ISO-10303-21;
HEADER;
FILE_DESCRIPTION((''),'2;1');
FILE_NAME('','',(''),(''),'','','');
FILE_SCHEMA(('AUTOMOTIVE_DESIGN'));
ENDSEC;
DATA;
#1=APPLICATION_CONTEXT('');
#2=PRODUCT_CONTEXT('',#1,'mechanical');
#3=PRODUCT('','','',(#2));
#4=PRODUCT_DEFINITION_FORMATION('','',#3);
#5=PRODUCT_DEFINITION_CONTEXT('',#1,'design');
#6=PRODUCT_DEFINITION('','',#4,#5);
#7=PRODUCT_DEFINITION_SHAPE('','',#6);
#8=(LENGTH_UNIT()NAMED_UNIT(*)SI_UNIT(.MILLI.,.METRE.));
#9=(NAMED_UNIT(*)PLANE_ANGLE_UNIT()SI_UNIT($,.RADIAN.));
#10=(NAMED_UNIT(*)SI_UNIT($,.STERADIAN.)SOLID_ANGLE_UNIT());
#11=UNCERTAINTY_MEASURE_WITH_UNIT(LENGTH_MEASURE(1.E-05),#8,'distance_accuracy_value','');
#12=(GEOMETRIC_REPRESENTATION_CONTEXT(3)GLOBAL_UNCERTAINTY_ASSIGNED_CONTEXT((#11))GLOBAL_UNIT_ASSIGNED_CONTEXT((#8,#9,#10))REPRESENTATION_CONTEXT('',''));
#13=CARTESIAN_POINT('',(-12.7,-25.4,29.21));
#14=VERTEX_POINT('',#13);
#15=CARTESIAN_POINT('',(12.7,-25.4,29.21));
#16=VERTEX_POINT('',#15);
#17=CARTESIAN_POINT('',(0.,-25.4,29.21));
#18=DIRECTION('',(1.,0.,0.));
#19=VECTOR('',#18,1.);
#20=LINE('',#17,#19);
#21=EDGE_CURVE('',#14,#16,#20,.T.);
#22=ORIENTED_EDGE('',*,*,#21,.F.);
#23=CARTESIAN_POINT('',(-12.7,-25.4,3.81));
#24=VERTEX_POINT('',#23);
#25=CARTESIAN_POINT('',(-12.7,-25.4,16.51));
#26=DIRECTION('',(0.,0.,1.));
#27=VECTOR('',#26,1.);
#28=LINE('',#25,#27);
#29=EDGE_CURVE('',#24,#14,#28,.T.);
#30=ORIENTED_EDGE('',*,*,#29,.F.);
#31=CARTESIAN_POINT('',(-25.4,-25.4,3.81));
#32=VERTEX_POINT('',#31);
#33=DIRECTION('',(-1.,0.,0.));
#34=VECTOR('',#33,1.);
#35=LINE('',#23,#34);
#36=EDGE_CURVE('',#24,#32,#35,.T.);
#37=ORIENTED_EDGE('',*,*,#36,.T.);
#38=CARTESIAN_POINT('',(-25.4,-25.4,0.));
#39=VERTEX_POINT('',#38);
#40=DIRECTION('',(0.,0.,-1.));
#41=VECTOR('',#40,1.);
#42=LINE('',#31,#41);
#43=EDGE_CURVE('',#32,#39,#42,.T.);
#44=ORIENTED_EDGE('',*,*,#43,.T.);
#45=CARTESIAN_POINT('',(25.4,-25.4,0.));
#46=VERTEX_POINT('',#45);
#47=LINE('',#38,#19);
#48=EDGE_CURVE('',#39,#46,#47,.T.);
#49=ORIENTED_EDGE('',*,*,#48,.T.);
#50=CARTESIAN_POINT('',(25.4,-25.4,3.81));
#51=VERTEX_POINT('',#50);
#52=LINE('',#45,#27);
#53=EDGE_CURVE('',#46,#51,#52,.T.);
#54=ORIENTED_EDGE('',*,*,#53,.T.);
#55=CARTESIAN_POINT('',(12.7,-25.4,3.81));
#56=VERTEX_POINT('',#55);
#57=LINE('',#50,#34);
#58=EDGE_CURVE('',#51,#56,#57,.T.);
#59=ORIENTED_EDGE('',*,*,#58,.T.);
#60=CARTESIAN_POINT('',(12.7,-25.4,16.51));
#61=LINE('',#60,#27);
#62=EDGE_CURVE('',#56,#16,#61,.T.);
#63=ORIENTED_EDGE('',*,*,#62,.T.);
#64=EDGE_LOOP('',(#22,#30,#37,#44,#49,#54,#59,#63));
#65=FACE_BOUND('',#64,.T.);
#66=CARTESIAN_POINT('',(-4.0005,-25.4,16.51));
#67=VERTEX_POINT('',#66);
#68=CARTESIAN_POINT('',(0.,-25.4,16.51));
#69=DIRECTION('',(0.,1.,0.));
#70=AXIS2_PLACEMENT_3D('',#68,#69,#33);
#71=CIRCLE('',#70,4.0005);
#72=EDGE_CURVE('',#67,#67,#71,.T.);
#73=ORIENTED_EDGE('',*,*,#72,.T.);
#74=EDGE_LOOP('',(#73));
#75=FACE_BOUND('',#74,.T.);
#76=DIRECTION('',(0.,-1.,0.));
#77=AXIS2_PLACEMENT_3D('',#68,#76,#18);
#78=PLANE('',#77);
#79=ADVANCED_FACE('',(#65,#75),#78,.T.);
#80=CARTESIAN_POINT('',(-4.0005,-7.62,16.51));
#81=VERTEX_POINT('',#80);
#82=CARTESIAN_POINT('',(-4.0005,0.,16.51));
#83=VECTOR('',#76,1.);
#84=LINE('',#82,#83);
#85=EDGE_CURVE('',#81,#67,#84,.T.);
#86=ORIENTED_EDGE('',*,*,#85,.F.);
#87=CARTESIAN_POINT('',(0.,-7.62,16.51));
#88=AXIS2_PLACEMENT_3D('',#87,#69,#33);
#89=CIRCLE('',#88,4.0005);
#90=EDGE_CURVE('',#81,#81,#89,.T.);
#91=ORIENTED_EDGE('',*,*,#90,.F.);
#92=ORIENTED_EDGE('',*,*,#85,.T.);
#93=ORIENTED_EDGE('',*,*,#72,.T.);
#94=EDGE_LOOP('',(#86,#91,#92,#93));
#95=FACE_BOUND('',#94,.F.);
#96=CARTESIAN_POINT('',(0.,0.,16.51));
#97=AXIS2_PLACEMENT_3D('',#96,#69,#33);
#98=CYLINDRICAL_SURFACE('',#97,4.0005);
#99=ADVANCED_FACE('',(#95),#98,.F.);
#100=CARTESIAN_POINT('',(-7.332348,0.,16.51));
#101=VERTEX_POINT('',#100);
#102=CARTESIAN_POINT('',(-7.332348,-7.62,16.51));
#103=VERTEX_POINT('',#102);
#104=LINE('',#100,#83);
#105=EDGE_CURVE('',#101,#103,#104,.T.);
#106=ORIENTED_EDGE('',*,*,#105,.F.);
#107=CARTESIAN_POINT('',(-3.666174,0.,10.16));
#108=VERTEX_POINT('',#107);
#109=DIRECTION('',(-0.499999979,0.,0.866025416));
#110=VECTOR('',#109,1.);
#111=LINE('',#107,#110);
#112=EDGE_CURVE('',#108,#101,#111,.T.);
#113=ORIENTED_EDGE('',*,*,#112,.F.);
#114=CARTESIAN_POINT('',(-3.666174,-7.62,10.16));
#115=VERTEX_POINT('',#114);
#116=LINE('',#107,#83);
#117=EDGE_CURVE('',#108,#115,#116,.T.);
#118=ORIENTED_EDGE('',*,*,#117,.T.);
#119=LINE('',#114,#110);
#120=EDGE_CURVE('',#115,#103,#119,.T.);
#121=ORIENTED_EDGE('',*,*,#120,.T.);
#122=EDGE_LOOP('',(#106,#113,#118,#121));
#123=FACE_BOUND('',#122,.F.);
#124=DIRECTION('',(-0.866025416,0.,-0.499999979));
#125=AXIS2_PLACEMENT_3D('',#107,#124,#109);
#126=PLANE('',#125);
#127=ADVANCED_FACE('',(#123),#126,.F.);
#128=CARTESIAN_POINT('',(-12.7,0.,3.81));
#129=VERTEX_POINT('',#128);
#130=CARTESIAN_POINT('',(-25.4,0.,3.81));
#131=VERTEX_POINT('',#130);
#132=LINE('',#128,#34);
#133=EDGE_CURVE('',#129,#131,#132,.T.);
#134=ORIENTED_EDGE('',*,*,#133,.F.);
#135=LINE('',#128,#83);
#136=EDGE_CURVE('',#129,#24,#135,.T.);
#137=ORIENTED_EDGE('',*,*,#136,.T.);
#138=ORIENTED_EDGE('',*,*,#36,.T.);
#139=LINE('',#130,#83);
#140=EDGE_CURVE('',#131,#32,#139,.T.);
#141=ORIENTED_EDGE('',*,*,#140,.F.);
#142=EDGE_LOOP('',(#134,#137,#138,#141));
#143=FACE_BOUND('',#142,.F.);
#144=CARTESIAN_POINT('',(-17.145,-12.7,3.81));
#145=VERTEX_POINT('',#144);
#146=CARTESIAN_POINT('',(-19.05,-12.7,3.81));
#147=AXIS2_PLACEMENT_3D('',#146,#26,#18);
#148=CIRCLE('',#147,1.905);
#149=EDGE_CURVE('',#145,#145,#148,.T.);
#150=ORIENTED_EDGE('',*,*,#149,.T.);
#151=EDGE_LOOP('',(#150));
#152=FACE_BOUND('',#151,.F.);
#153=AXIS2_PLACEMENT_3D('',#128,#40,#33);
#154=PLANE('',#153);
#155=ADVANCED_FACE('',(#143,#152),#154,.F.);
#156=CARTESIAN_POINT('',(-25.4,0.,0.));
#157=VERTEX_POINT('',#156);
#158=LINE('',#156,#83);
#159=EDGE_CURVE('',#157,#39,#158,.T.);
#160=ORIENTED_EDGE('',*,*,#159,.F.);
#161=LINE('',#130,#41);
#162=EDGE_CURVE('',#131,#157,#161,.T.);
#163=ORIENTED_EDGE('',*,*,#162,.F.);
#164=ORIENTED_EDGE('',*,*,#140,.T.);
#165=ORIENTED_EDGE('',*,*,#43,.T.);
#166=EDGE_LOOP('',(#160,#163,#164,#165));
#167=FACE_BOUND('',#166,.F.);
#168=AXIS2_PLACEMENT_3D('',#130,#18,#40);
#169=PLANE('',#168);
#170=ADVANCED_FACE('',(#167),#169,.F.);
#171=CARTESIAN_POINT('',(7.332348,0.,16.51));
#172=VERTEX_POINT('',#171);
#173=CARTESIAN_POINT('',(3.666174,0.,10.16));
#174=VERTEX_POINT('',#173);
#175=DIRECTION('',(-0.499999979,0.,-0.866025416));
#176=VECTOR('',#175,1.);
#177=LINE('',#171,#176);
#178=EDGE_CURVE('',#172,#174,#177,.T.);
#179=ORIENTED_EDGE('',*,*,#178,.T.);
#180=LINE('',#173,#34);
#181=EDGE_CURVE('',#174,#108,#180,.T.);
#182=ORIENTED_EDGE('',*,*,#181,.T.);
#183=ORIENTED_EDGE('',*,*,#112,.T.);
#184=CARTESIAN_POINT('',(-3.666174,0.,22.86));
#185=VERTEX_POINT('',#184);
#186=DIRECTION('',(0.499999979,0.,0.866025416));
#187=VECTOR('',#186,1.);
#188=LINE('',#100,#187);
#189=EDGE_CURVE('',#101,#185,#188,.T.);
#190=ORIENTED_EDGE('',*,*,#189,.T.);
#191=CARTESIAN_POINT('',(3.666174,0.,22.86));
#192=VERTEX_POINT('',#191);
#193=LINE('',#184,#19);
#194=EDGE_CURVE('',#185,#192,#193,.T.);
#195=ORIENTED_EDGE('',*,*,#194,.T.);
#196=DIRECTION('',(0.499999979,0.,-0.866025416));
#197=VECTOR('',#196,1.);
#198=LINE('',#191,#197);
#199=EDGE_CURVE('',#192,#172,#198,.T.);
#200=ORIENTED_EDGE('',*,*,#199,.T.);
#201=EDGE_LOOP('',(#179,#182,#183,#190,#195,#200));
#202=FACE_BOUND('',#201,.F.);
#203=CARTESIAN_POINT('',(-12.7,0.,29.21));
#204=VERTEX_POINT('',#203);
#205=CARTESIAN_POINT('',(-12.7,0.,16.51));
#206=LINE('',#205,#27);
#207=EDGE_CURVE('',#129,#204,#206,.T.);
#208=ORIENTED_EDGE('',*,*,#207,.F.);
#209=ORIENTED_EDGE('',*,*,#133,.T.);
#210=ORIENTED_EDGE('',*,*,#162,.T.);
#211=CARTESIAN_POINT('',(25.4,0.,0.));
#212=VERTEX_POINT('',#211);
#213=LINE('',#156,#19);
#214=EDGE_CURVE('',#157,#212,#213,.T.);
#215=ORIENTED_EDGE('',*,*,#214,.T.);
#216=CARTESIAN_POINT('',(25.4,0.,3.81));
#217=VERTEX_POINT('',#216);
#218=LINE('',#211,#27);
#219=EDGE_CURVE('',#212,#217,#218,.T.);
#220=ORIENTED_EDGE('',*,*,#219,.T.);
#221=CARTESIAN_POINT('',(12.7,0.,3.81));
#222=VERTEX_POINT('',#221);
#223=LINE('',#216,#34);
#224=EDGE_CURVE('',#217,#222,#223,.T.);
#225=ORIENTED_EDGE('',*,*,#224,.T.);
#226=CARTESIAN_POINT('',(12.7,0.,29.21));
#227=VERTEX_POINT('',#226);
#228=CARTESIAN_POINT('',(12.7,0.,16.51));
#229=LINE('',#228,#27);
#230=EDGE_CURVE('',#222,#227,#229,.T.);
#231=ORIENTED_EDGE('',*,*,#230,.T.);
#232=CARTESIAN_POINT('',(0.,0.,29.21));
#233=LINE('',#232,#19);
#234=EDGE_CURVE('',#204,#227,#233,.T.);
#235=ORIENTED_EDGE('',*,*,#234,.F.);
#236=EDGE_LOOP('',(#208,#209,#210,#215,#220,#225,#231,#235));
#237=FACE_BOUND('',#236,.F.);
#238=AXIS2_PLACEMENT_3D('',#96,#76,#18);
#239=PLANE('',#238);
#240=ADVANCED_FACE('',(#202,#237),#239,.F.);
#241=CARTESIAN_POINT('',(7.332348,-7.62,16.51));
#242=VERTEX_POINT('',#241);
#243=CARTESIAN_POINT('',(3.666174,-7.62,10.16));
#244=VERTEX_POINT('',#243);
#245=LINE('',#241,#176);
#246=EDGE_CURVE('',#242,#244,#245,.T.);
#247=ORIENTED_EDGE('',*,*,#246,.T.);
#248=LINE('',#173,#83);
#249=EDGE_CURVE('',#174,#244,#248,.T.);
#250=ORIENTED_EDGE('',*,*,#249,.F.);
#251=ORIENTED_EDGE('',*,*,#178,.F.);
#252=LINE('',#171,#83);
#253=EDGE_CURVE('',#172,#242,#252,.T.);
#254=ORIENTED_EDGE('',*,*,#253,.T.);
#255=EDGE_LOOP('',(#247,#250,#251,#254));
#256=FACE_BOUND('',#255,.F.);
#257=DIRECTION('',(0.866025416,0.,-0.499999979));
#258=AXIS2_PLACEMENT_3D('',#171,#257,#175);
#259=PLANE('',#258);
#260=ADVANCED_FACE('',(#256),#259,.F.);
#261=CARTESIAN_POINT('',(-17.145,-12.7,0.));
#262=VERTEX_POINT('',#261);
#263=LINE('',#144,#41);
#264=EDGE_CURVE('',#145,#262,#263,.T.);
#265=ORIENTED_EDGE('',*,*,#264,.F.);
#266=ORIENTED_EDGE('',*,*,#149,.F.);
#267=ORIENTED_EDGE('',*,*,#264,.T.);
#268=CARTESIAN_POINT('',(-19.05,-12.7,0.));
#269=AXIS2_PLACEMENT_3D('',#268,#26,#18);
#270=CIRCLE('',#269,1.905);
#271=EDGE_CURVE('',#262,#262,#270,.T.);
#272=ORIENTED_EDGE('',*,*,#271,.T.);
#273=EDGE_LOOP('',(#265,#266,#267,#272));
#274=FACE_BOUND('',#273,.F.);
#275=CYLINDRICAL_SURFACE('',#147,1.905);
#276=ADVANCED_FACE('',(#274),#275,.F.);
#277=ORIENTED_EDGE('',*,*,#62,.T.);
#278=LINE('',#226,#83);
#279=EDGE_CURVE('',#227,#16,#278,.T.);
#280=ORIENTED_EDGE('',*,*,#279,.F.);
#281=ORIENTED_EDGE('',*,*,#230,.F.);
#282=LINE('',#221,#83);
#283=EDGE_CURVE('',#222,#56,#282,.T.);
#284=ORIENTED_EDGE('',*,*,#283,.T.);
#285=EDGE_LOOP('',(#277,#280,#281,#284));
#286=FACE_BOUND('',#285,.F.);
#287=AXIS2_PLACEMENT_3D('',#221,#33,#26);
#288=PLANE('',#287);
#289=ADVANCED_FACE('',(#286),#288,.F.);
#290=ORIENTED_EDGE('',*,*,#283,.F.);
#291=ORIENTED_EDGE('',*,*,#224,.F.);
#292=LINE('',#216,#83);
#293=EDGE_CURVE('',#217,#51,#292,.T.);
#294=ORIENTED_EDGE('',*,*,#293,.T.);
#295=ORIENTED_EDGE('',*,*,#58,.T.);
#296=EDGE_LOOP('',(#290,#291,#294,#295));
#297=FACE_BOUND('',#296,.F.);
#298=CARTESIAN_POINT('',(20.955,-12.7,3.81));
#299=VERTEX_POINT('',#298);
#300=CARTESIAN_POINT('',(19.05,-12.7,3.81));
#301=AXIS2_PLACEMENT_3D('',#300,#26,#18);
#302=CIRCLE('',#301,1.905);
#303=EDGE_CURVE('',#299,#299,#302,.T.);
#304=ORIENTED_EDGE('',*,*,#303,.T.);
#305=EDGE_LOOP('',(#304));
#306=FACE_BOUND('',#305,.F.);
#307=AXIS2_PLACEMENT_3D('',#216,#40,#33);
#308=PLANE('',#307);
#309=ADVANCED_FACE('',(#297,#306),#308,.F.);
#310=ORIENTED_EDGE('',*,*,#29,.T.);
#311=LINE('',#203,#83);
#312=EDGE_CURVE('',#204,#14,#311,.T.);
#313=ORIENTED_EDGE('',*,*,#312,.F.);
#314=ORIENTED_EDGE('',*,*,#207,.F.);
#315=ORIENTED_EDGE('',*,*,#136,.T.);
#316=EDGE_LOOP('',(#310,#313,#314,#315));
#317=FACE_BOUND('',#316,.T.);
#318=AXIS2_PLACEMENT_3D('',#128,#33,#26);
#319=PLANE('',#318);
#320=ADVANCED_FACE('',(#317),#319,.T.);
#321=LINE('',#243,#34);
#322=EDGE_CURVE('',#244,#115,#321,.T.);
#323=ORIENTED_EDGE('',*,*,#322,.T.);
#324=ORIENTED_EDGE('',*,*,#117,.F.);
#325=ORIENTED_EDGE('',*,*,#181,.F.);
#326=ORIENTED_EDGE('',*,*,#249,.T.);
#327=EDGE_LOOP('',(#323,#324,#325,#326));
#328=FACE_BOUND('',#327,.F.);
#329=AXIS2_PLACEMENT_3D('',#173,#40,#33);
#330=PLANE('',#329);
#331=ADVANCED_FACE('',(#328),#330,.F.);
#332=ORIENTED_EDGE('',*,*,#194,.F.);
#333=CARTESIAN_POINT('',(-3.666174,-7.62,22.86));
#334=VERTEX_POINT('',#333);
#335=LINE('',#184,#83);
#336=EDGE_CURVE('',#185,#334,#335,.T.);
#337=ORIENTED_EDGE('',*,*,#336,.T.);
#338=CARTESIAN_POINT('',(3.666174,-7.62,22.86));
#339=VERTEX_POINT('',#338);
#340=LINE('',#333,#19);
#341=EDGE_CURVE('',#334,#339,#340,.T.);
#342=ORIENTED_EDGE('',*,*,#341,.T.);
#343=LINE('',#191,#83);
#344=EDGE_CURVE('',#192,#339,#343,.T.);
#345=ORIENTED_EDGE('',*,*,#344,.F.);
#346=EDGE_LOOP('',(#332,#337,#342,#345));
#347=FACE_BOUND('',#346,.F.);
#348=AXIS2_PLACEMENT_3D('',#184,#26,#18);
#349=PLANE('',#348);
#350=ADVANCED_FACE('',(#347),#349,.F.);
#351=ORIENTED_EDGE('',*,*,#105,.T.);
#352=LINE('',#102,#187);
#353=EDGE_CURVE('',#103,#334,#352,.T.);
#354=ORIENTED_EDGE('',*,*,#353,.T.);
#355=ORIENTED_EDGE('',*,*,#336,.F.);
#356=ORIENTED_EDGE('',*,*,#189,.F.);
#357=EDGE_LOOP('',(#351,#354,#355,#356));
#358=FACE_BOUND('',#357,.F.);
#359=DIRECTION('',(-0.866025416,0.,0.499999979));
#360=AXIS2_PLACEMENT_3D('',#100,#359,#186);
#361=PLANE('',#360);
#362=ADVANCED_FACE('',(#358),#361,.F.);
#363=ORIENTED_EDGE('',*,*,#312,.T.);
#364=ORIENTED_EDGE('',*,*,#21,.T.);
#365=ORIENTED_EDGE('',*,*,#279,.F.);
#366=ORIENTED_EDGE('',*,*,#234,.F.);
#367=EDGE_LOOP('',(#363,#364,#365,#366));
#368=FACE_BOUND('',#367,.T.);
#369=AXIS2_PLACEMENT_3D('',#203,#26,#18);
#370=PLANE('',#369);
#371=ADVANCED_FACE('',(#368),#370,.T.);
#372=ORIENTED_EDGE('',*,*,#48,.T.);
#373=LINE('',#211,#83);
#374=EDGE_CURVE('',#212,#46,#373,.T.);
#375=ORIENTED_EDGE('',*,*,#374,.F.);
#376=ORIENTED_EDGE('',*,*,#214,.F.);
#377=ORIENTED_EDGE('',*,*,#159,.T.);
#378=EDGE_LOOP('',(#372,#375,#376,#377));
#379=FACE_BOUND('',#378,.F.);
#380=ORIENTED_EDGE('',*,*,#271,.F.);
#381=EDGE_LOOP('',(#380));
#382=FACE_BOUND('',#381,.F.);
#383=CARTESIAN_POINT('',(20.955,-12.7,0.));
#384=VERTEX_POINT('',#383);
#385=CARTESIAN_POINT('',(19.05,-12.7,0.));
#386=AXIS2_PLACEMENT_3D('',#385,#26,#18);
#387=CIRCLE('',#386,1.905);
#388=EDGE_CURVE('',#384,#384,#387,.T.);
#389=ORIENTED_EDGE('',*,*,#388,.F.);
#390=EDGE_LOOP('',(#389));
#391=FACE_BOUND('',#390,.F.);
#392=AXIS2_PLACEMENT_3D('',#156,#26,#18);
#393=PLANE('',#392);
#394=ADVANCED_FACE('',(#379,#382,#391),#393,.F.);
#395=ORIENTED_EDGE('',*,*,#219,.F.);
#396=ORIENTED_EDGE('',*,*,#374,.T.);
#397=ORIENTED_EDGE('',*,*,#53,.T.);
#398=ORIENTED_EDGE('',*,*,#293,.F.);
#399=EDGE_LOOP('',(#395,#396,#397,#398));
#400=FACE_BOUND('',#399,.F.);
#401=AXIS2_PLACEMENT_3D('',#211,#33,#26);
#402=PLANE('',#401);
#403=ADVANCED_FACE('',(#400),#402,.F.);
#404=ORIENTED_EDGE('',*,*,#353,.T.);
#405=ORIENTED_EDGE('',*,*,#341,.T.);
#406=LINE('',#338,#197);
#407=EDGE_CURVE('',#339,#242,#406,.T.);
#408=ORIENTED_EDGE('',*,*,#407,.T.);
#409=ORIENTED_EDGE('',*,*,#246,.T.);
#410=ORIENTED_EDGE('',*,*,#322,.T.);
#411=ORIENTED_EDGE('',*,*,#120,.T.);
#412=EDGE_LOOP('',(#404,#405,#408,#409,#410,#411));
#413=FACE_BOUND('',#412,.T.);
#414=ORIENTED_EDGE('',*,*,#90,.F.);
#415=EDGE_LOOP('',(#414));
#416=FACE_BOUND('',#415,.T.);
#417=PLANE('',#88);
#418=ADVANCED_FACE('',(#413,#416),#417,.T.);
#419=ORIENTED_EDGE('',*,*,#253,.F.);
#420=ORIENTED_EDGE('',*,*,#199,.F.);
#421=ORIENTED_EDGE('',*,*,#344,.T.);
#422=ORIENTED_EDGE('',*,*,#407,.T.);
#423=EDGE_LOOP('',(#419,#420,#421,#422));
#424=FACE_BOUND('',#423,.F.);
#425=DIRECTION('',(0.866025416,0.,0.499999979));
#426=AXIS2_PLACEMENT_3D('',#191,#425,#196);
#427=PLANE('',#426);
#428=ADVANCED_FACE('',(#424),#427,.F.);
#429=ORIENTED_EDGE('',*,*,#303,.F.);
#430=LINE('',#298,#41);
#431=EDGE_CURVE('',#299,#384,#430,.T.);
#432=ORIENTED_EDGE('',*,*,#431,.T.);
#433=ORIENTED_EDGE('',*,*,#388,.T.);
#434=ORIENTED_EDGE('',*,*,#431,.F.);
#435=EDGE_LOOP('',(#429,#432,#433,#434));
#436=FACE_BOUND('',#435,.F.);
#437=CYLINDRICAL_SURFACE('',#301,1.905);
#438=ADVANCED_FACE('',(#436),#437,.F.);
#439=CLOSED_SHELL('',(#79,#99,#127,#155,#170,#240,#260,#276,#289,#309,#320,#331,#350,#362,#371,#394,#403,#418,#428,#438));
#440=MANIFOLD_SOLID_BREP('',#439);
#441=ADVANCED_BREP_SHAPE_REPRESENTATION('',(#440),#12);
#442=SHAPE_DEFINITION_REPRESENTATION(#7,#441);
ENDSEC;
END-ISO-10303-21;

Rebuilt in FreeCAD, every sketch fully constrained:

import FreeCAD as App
import Part
import Sketcher
Q = App.Units.Quantity

doc = App.newDocument("Part")
body = doc.addObject("PartDesign::Body", "Body")

# Sketch on XZ plane
sketch1 = body.newObject("Sketcher::SketchObject", "Sketch")
sketch1.AttachmentSupport = (doc.getObject("XZ_Plane"), [""])
sketch1.MapMode = "FlatFace"
sketch1.addGeometry([
    Part.LineSegment(App.Vector(-12.7, 29.2, 0), App.Vector(-12.7, 3.8, 0)),  # 0
    Part.LineSegment(App.Vector(-12.7, 3.8, 0), App.Vector(-25.4, 3.8, 0)),  # 1
    Part.LineSegment(App.Vector(-25.4, 3.8, 0), App.Vector(-25.4, 0, 0)),  # 2
    Part.LineSegment(App.Vector(-25.4, 0, 0), App.Vector(25.4, 0, 0)),  # 3
    Part.LineSegment(App.Vector(25.4, 0, 0), App.Vector(25.4, 3.8, 0)),  # 4
    Part.LineSegment(App.Vector(25.4, 3.8, 0), App.Vector(12.7, 3.8, 0)),  # 5
    Part.LineSegment(App.Vector(12.7, 3.8, 0), App.Vector(12.7, 29.2, 0)),  # 6
    Part.LineSegment(App.Vector(12.7, 29.2, 0), App.Vector(-12.7, 29.2, 0)),  # 7
], False)
sketch1.addConstraint([
    Sketcher.Constraint("Coincident", 0, 2, 1, 1),
    Sketcher.Constraint("Coincident", 1, 2, 2, 1),
    Sketcher.Constraint("Coincident", 2, 2, 3, 1),
    Sketcher.Constraint("Coincident", 3, 2, 4, 1),
    Sketcher.Constraint("Coincident", 4, 2, 5, 1),
    Sketcher.Constraint("Coincident", 5, 2, 6, 1),
    Sketcher.Constraint("Coincident", 6, 2, 7, 1),
    Sketcher.Constraint("Coincident", 7, 2, 0, 1),
    Sketcher.Constraint("Vertical", 0),
    Sketcher.Constraint("Horizontal", 1),
    Sketcher.Constraint("Vertical", 2),
    Sketcher.Constraint("Horizontal", 3),
    Sketcher.Constraint("Vertical", 4),
    Sketcher.Constraint("Horizontal", 5),
    Sketcher.Constraint("Vertical", 6),
    Sketcher.Constraint("Horizontal", 7),
    Sketcher.Constraint("Symmetric", 2, 2, 3, 2, -1, 1),
    Sketcher.Constraint("Symmetric", 0, 2, 5, 2, -2),
    Sketcher.Constraint("Equal", 7, 0),
    Sketcher.Constraint("DistanceX", 3, 1, 3, 2, Q("2 in")),
    Sketcher.Constraint("DistanceX", 7, 2, 7, 1, Q("1 in")),
    Sketcher.Constraint("DistanceY", 2, 2, 2, 1, Q("0.15 in")),
])
pad1 = body.newObject("PartDesign::Pad", "Pad")
pad1.Profile = sketch1
pad1.Length = Q("1 in")

# Sketch on XZ plane
sketch2 = body.newObject("Sketcher::SketchObject", "Sketch001")
sketch2.AttachmentSupport = (doc.getObject("XZ_Plane"), [""])
sketch2.MapMode = "FlatFace"
sketch2.addGeometry(Part.Circle(App.Vector(0, 16.5, 0), App.Vector(0, 0, 1), 4), False)
sketch2.addConstraint([
    Sketcher.Constraint("PointOnObject", 0, 3, -2),
    Sketcher.Constraint("Diameter", 0, Q("0.315 in")),
    Sketcher.Constraint("DistanceY", -1, 1, 0, 3, Q("0.65 in")),
])
pocket1 = body.newObject("PartDesign::Pocket", "Pocket")
pocket1.Profile = sketch2
pocket1.Type = "ThroughAll"
pocket1.Reversed = True

# Sketch on XZ plane
sketch3 = body.newObject("Sketcher::SketchObject", "Sketch002")
sketch3.AttachmentSupport = (doc.getObject("XZ_Plane"), [""])
sketch3.MapMode = "FlatFace"
sketch3.addGeometry([
    Part.LineSegment(App.Vector(-7.3, 16.5, 0), App.Vector(-3.7, 22.9, 0)),  # 0
    Part.LineSegment(App.Vector(-3.7, 22.9, 0), App.Vector(3.7, 22.9, 0)),  # 1
    Part.LineSegment(App.Vector(3.7, 22.9, 0), App.Vector(7.3, 16.5, 0)),  # 2
    Part.LineSegment(App.Vector(7.3, 16.5, 0), App.Vector(3.7, 10.2, 0)),  # 3
    Part.LineSegment(App.Vector(3.7, 10.2, 0), App.Vector(-3.7, 10.2, 0)),  # 4
    Part.LineSegment(App.Vector(-3.7, 10.2, 0), App.Vector(-7.3, 16.5, 0)),  # 5
    Part.Circle(App.Vector(0, 16.5, 0), App.Vector(0, 0, 1), 4),  # 6
], False)
sketch3.addConstraint([
    Sketcher.Constraint("Coincident", 0, 2, 1, 1),
    Sketcher.Constraint("Coincident", 1, 2, 2, 1),
    Sketcher.Constraint("Coincident", 2, 2, 3, 1),
    Sketcher.Constraint("Coincident", 3, 2, 4, 1),
    Sketcher.Constraint("Coincident", 4, 2, 5, 1),
    Sketcher.Constraint("Coincident", 5, 2, 0, 1),
    Sketcher.Constraint("Horizontal", 1),
    Sketcher.Constraint("Horizontal", 4),
    Sketcher.Constraint("Symmetric", 2, 2, 5, 2, -2),
    Sketcher.Constraint("PointOnObject", 6, 3, -2),
    Sketcher.Constraint("Parallel", 0, 3),
    Sketcher.Constraint("Parallel", 2, 5),
    Sketcher.Constraint("Horizontal", 6, 3, 2, 2),
    Sketcher.Constraint("Vertical", 1, 2, 3, 2),
    Sketcher.Constraint("Vertical", 0, 2, 4, 2),
    Sketcher.Constraint("Diameter", 6, Q("0.315 in")),
    Sketcher.Constraint("Angle", 0, Q("60.000001 deg")),
    Sketcher.Constraint("DistanceY", -1, 1, 0, 2, Q("0.9 in")),
    Sketcher.Constraint("DistanceY", -1, 1, 3, 2, Q("0.4 in")),
    Sketcher.Constraint("DistanceX", 1, 1, 1, 2, 7.332348),
])
pocket2 = body.newObject("PartDesign::Pocket", "Pocket001")
pocket2.Profile = sketch3
pocket2.Length = Q("0.3 in")
pocket2.Reversed = True

# Sketch on XY plane
sketch4 = body.newObject("Sketcher::SketchObject", "Sketch003")
sketch4.AttachmentSupport = (doc.getObject("XY_Plane"), [""])
sketch4.MapMode = "FlatFace"
sketch4.AttachmentOffset = App.Placement(App.Vector(0, 0, 0.15 * 25.4), App.Rotation())
sketch4.addGeometry([
    Part.Circle(App.Vector(-19.1, -12.7, 0), App.Vector(0, 0, 1), 1.9),
    Part.Circle(App.Vector(19.1, -12.7, 0), App.Vector(0, 0, 1), 1.9),
], False)
sketch4.addConstraint([
    Sketcher.Constraint("Equal", 0, 1),
    Sketcher.Constraint("Symmetric", 0, 3, 1, 3, -2),
    Sketcher.Constraint("Diameter", 0, Q("0.15 in")),
    Sketcher.Constraint("DistanceY", 0, 3, -1, 1, Q("0.5 in")),
    Sketcher.Constraint("DistanceX", 0, 3, 1, 3, Q("1.5 in")),
])
pocket3 = body.newObject("PartDesign::Pocket", "Pocket002")
pocket3.Profile = sketch4
pocket3.Length = Q("1 in")

doc.recompute()
